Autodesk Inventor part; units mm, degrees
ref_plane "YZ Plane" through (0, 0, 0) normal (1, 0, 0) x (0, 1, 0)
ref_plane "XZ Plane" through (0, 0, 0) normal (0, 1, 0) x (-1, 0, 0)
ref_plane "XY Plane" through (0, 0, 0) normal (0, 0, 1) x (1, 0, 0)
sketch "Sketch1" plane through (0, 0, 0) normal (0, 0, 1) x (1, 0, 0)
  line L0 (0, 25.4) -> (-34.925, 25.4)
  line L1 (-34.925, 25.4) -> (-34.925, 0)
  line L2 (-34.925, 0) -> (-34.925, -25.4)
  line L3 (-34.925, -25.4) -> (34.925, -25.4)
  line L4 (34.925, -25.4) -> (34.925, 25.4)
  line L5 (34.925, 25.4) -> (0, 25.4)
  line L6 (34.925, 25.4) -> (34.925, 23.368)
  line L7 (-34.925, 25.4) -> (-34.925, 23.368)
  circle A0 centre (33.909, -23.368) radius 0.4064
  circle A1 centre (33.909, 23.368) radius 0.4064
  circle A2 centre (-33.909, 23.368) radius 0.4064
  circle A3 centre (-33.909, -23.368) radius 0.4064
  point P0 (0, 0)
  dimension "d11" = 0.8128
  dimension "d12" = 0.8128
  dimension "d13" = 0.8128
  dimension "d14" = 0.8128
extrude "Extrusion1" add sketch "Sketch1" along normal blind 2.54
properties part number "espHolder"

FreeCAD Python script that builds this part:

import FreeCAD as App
import Part
import Sketcher

V = App.Vector
Q = App.Units.Quantity


def add_polygon(sketch, points):
    """Adds a closed chain of lines whose ends are joined by coincident constraints."""
    first, n = sketch.GeometryCount, len(points)
    for a, b in zip(points, points[1:] + points[:1]):
        sketch.addGeometry(Part.LineSegment(App.Vector(*a, 0), App.Vector(*b, 0)), False)
    for i in range(n):
        sketch.addConstraint(Sketcher.Constraint("Coincident", first + i, 2, first + (i + 1) % n, 1))

doc = App.newDocument("Part")
body = doc.addObject("PartDesign::Body", "Body")

# Sketch on XY plane
sketch1 = body.newObject("Sketcher::SketchObject", "Sketch")
sketch1.AttachmentSupport = (doc.getObject("XY_Plane"), [""])
sketch1.MapMode = "FlatFace"
add_polygon(sketch1, [(34.92, 25.4), (-34.92, 25.4), (-34.92, -25.4), (34.92, -25.4)])  # lines 0-3
sketch1.addGeometry(Part.Circle(V(-33.91, -23.37, 0), V(0, 0, 1), 0.41), False)  # 4
sketch1.addGeometry(Part.Circle(V(33.91, -23.37, 0), V(0, 0, 1), 0.41), False)  # 5
sketch1.addGeometry(Part.Circle(V(-33.91, 23.37, 0), V(0, 0, 1), 0.41), False)  # 6
sketch1.addGeometry(Part.Circle(V(33.91, 23.37, 0), V(0, 0, 1), 0.41), False)  # 7
sketch1.addConstraint([
    Sketcher.Constraint("Horizontal", 0),
    Sketcher.Constraint("Vertical", 1),
    Sketcher.Constraint("Horizontal", 2),
    Sketcher.Constraint("Vertical", 3),
    Sketcher.Constraint("Equal", 4, 5),
    Sketcher.Constraint("Equal", 5, 6),
    Sketcher.Constraint("Equal", 6, 7),
    Sketcher.Constraint("Symmetric", 5, 3, 6, 3, -1, 1),
    Sketcher.Constraint("Symmetric", 4, 3, 7, 3, -1, 1),
    Sketcher.Constraint("Symmetric", 0, 2, 2, 2, -1, 1),
    Sketcher.Constraint("Symmetric", 4, 3, 5, 3, -2),
    Sketcher.Constraint("Diameter", 4, Q("0.032 in")),
    Sketcher.Constraint("DistanceY", 1, 2, 1, 1, Q("2 in")),
    Sketcher.Constraint("DistanceX", 0, 2, 0, 1, Q("2.75 in")),
    Sketcher.Constraint("DistanceY", 4, 3, -1, 1, Q("0.92 in")),
    Sketcher.Constraint("DistanceX", 4, 3, 5, 3, Q("2.67 in")),
])
pad1 = body.newObject("PartDesign::Pad", "Pad")
pad1.Profile = sketch1
pad1.Length = Q("0.1 in")

doc.recompute()
